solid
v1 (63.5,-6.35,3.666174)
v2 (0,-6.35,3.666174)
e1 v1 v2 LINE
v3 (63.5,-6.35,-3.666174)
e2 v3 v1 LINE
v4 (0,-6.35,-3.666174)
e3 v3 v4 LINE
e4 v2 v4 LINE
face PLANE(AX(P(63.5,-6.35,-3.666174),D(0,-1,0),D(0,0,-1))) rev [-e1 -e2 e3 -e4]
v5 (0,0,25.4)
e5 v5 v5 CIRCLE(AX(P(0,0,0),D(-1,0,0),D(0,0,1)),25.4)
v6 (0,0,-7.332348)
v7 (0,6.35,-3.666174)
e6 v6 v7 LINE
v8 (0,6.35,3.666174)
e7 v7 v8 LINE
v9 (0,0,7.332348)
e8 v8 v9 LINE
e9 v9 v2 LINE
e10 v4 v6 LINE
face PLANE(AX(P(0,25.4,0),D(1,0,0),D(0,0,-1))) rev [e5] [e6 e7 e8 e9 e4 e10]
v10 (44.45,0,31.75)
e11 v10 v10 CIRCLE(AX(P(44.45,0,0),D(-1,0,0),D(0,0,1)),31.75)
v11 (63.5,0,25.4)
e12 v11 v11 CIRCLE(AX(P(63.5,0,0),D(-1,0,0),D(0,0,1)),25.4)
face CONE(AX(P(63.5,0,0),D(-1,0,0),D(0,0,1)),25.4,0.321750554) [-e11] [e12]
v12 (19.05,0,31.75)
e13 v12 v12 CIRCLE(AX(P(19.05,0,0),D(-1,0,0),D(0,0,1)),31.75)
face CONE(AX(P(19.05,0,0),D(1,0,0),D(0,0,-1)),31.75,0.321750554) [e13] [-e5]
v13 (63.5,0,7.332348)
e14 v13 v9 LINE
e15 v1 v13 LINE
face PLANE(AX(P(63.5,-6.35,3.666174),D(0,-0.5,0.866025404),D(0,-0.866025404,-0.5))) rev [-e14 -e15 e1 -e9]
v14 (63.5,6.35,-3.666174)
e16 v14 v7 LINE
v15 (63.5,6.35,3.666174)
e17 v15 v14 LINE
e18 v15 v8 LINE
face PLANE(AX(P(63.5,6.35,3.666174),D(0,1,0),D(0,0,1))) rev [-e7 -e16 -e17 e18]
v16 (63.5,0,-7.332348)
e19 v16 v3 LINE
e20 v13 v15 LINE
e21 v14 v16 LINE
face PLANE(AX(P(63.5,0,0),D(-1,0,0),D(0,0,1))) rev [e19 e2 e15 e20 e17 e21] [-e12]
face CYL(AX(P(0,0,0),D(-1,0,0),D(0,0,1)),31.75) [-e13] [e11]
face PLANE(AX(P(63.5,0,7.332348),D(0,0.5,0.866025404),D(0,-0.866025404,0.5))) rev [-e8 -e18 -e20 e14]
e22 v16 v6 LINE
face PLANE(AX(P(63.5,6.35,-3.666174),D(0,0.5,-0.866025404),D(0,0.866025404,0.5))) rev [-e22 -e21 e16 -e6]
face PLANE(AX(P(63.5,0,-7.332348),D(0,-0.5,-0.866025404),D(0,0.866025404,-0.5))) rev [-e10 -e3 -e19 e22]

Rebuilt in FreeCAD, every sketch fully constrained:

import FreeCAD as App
import Part
import Sketcher
from FreeCAD import Vector
Q = App.Units.Quantity

doc = App.newDocument("Part")
body = doc.addObject("PartDesign::Body", "Body")

# Sketch on XY plane
sketch1 = doc.addObject("Sketcher::SketchObject", "Sketch")
body.addObject(sketch1)
sketch1.AttachmentSupport = (doc.XY_Plane, [""])
sketch1.MapMode = "FlatFace"
sketch1.addGeometry([
    Part.LineSegment(Vector(0, 0, 0), Vector(64, 0, 0)),  # 0
    Part.LineSegment(Vector(64, 0, 0), Vector(64, 25, 0)),  # 1
    Part.LineSegment(Vector(64, 25, 0), Vector(44, 32, 0)),  # 2
    Part.LineSegment(Vector(44, 32, 0), Vector(19, 32, 0)),  # 3
    Part.LineSegment(Vector(19, 32, 0), Vector(0, 25, 0)),  # 4
    Part.LineSegment(Vector(0, 25, 0), Vector(0, 0, 0)),  # 5
], False)
sketch1.addConstraint([
    Sketcher.Constraint("Coincident", 0, 2, 1, 1),
    Sketcher.Constraint("Coincident", 1, 2, 2, 1),
    Sketcher.Constraint("Coincident", 2, 2, 3, 1),
    Sketcher.Constraint("Coincident", 3, 2, 4, 1),
    Sketcher.Constraint("Coincident", 4, 2, 5, 1),
    Sketcher.Constraint("Coincident", 5, 2, 0, 1),
    Sketcher.Constraint("Horizontal", 0),
    Sketcher.Constraint("Vertical", 1),
    Sketcher.Constraint("Horizontal", 3),
    Sketcher.Constraint("Vertical", 5),
    Sketcher.Constraint("Coincident", 5, 2, -1, 1),
    Sketcher.Constraint("Horizontal", 1, 2, 4, 2),
    Sketcher.Constraint("Equal", 3, 1),
    Sketcher.Constraint("Equal", 2, 4),
    Sketcher.Constraint("DistanceX", 3, 2, 3, 1, Q("1 in")),
    Sketcher.Constraint("DistanceX", 0, 1, 0, 2, Q("2.5 in")),
    Sketcher.Constraint("DistanceY", -1, 1, 2, 2, Q("1.25 in")),
])
revolution = doc.addObject("PartDesign::Revolution", "Revolution")
body.addObject(revolution)
revolution.Profile = sketch1
revolution.ReferenceAxis = (sketch1, ["H_Axis"])
revolution.Angle = 360

# Sketch on YZ plane
sketch2 = doc.addObject("Sketcher::SketchObject", "Sketch001")
body.addObject(sketch2)
sketch2.AttachmentSupport = (doc.YZ_Plane, [""])
sketch2.MapMode = "FlatFace"
sketch2.addGeometry([
    Part.LineSegment(Vector(6, -4, 0), Vector(0, -7, 0)),  # 0
    Part.LineSegment(Vector(0, -7, 0), Vector(-6, -4, 0)),  # 1
    Part.LineSegment(Vector(-6, -4, 0), Vector(-6, 4, 0)),  # 2
    Part.LineSegment(Vector(-6, 4, 0), Vector(0, 7, 0)),  # 3
    Part.LineSegment(Vector(0, 7, 0), Vector(6, 4, 0)),  # 4
    Part.LineSegment(Vector(6, 4, 0), Vector(6, -4, 0)),  # 5
], False)
sketch2.addConstraint([
    Sketcher.Constraint("Coincident", 0, 2, 1, 1),
    Sketcher.Constraint("Coincident", 1, 2, 2, 1),
    Sketcher.Constraint("Coincident", 2, 2, 3, 1),
    Sketcher.Constraint("Coincident", 3, 2, 4, 1),
    Sketcher.Constraint("Coincident", 4, 2, 5, 1),
    Sketcher.Constraint("Coincident", 5, 2, 0, 1),
    Sketcher.Constraint("Vertical", 2),
    Sketcher.Constraint("Vertical", 5),
    Sketcher.Constraint("Symmetric", 0, 2, 3, 2, -1, 1),
    Sketcher.Constraint("Symmetric", 1, 2, 4, 2, -1, 1),
    Sketcher.Constraint("PointOnObject", 0, 2, -2),
    Sketcher.Constraint("Parallel", 0, 3),
    Sketcher.Constraint("Horizontal", 2, 2, 4, 2),
    Sketcher.Constraint("Angle", 0, Q("-150 deg")),
    Sketcher.Constraint("DistanceX", 2, 2, 4, 2, Q("0.5 in")),
    Sketcher.Constraint("DistanceY", 2, 1, 2, 2, Q("7.332348 mm")),
])
pocket1 = doc.addObject("PartDesign::Pocket", "Pocket")
body.addObject(pocket1)
pocket1.Profile = sketch2
pocket1.Type = "ThroughAll"
pocket1.Midplane = True

doc.recompute()
